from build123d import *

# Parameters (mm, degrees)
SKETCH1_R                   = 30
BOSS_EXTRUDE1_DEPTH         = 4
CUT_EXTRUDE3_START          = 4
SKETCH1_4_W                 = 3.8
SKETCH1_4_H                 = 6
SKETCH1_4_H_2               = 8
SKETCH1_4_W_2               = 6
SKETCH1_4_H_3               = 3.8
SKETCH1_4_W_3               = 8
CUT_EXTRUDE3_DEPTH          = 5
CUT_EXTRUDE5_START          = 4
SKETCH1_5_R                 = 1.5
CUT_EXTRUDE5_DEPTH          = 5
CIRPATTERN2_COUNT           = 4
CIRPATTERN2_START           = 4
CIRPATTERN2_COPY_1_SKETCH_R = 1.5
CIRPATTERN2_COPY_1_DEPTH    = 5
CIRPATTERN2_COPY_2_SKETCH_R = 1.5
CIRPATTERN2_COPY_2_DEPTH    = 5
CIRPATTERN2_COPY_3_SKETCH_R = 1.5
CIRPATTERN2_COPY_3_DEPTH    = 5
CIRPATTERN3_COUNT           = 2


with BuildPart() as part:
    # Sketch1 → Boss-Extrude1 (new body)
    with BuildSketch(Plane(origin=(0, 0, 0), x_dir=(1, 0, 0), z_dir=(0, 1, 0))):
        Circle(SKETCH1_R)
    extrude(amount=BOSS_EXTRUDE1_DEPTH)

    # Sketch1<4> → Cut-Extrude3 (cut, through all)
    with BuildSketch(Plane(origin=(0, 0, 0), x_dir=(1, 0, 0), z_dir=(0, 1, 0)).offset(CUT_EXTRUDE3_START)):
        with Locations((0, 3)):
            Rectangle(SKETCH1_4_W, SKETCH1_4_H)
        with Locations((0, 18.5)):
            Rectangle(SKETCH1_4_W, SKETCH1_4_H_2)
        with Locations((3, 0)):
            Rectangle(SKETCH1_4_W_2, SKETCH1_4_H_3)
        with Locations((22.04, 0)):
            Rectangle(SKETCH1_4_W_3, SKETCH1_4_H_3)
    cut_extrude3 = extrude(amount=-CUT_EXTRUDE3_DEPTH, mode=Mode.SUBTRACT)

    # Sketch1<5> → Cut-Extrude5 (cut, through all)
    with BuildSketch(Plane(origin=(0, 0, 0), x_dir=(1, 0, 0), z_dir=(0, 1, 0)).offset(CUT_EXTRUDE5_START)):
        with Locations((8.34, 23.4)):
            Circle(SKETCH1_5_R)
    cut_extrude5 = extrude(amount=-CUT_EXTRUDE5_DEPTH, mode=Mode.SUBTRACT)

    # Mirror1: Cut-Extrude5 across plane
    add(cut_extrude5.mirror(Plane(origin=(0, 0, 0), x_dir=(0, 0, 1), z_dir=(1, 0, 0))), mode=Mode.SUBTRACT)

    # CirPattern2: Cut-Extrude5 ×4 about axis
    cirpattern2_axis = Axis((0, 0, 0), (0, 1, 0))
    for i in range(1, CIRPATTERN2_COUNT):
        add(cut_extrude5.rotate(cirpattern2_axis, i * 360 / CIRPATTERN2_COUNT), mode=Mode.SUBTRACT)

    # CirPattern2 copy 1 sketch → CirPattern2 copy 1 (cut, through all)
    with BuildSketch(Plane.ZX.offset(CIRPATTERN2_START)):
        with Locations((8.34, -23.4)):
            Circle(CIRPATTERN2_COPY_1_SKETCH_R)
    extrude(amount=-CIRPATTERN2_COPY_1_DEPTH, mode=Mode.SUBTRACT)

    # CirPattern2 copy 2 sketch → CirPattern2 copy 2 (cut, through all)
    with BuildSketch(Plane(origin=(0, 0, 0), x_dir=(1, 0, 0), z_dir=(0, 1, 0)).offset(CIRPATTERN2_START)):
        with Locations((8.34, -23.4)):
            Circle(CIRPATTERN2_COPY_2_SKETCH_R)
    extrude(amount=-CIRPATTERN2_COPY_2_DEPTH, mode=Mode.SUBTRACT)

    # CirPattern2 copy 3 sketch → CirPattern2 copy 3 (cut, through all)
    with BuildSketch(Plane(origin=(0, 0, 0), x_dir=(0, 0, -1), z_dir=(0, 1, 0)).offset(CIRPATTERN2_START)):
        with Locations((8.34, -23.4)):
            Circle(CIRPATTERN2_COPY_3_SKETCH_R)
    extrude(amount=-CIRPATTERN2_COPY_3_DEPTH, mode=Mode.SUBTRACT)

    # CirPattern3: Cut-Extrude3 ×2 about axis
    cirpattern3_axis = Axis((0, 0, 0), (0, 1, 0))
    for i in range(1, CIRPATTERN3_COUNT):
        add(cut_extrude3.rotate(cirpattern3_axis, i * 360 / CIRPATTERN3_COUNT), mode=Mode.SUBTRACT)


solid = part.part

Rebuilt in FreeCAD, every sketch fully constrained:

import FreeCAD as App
import Part
import Sketcher
Q = App.Units.Quantity

doc = App.newDocument("Part")
body = doc.addObject("PartDesign::Body", "Body")

sketch1 = body.newObject("Sketcher::SketchObject", "Sketch")
sketch1.AttachmentSupport = (doc.getObject("XZ_Plane"), [""])
sketch1.MapMode = "FlatFace"
sketch1.addGeometry(Part.Circle(App.Vector(0, 0, 0), App.Vector(0, 0, 1), 30), False)
sketch1.addConstraint(Sketcher.Constraint("Coincident", 0, 3, -1, 1))
sketch1.addConstraint(Sketcher.Constraint("Diameter", 0, Q("60 mm")))
pad1 = body.newObject("PartDesign::Pad", "Pad")
pad1.Profile = sketch1
pad1.Length = 4
pad1.Reversed = True

sketch2 = body.newObject("Sketcher::SketchObject", "Sketch001")
sketch2.AttachmentSupport = (doc.getObject("XZ_Plane"), [""])
sketch2.MapMode = "FlatFace"
sketch2.AttachmentOffset = App.Placement(App.Vector(0, 0, -4), App.Rotation())
sketch2.addGeometry(Part.LineSegment(App.Vector(-1.9, -6, 0), App.Vector(-1.9, 0, 0)), False)
sketch2.addGeometry(Part.LineSegment(App.Vector(-1.9, 0, 0), App.Vector(0, 0, 0)), False)
sketch2.addGeometry(Part.LineSegment(App.Vector(0, 0, 0), App.Vector(0, 1.9, 0)), False)
sketch2.addGeometry(Part.LineSegment(App.Vector(0, 1.9, 0), App.Vector(6, 1.9, 0)), False)
sketch2.addGeometry(Part.LineSegment(App.Vector(6, 1.9, 0), App.Vector(6, -1.9, 0)), False)
sketch2.addGeometry(Part.LineSegment(App.Vector(6, -1.9, 0), App.Vector(1.9, -1.9, 0)), False)
sketch2.addGeometry(Part.LineSegment(App.Vector(1.9, -1.9, 0), App.Vector(1.9, -6, 0)), False)
sketch2.addGeometry(Part.LineSegment(App.Vector(1.9, -6, 0), App.Vector(-1.9, -6, 0)), False)
sketch2.addGeometry(Part.LineSegment(App.Vector(-1.9, -22.5, 0), App.Vector(-1.9, -14.5, 0)), False)
sketch2.addGeometry(Part.LineSegment(App.Vector(-1.9, -14.5, 0), App.Vector(1.9, -14.5, 0)), False)
sketch2.addGeometry(Part.LineSegment(App.Vector(1.9, -14.5, 0), App.Vector(1.9, -22.5, 0)), False)
sketch2.addGeometry(Part.LineSegment(App.Vector(1.9, -22.5, 0), App.Vector(-1.9, -22.5, 0)), False)
sketch2.addGeometry(Part.LineSegment(App.Vector(18, -1.9, 0), App.Vector(18, 1.9, 0)), False)
sketch2.addGeometry(Part.LineSegment(App.Vector(18, 1.9, 0), App.Vector(26, 1.9, 0)), False)
sketch2.addGeometry(Part.LineSegment(App.Vector(26, 1.9, 0), App.Vector(26, -1.9, 0)), False)
sketch2.addGeometry(Part.LineSegment(App.Vector(26, -1.9, 0), App.Vector(18, -1.9, 0)), False)
sketch2.addConstraint(Sketcher.Constraint("Coincident", 0, 2, 1, 1))
sketch2.addConstraint(Sketcher.Constraint("Coincident", 1, 2, 2, 1))
sketch2.addConstraint(Sketcher.Constraint("Coincident", 2, 2, 3, 1))
sketch2.addConstraint(Sketcher.Constraint("Coincident", 3, 2, 4, 1))
sketch2.addConstraint(Sketcher.Constraint("Coincident", 4, 2, 5, 1))
sketch2.addConstraint(Sketcher.Constraint("Coincident", 5, 2, 6, 1))
sketch2.addConstraint(Sketcher.Constraint("Coincident", 6, 2, 7, 1))
sketch2.addConstraint(Sketcher.Constraint("Coincident", 7, 2, 0, 1))
sketch2.addConstraint(Sketcher.Constraint("Coincident", 8, 2, 9, 1))
sketch2.addConstraint(Sketcher.Constraint("Coincident", 9, 2, 10, 1))
sketch2.addConstraint(Sketcher.Constraint("Coincident", 10, 2, 11, 1))
sketch2.addConstraint(Sketcher.Constraint("Coincident", 11, 2, 8, 1))
sketch2.addConstraint(Sketcher.Constraint("Coincident", 12, 2, 13, 1))
sketch2.addConstraint(Sketcher.Constraint("Coincident", 13, 2, 14, 1))
sketch2.addConstraint(Sketcher.Constraint("Coincident", 14, 2, 15, 1))
sketch2.addConstraint(Sketcher.Constraint("Coincident", 15, 2, 12, 1))
sketch2.addConstraint(Sketcher.Constraint("Vertical", 0))
sketch2.addConstraint(Sketcher.Constraint("Horizontal", 1))
sketch2.addConstraint(Sketcher.Constraint("Vertical", 2))
sketch2.addConstraint(Sketcher.Constraint("Horizontal", 3))
sketch2.addConstraint(Sketcher.Constraint("Vertical", 4))
sketch2.addConstraint(Sketcher.Constraint("Horizontal", 5))
sketch2.addConstraint(Sketcher.Constraint("Vertical", 6))
sketch2.addConstraint(Sketcher.Constraint("Horizontal", 7))
sketch2.addConstraint(Sketcher.Constraint("Vertical", 8))
sketch2.addConstraint(Sketcher.Constraint("Horizontal", 9))
sketch2.addConstraint(Sketcher.Constraint("Vertical", 10))
sketch2.addConstraint(Sketcher.Constraint("Horizontal", 11))
sketch2.addConstraint(Sketcher.Constraint("Vertical", 12))
sketch2.addConstraint(Sketcher.Constraint("Horizontal", 13))
sketch2.addConstraint(Sketcher.Constraint("Vertical", 14))
sketch2.addConstraint(Sketcher.Constraint("Horizontal", 15))
sketch2.addConstraint(Sketcher.Constraint("Coincident", 1, 2, -1, 1))
sketch2.addConstraint(Sketcher.Constraint("Horizontal", 3, 2, 12, 2))
sketch2.addConstraint(Sketcher.Constraint("Horizontal", 5, 2, 14, 2))
sketch2.addConstraint(Sketcher.Constraint("Vertical", 7, 2, 8, 2))
sketch2.addConstraint(Sketcher.Constraint("Vertical", 6, 2, 9, 2))
sketch2.addConstraint(Sketcher.Constraint("Equal", 3, 0))
sketch2.addConstraint(Sketcher.Constraint("Equal", 1, 2))
sketch2.addConstraint(Sketcher.Constraint("Equal", 11, 4))
sketch2.addConstraint(Sketcher.Constraint("Equal", 15, 8))
sketch2.addConstraint(Sketcher.Constraint("DistanceX", 3, 1, 3, 2, Q("6 mm")))
sketch2.addConstraint(Sketcher.Constraint("DistanceX", 13, 1, 13, 2, Q("8 mm")))
sketch2.addConstraint(Sketcher.Constraint("DistanceX", 1, 1, 1, 2, Q("1.9 mm")))
sketch2.addConstraint(Sketcher.Constraint("DistanceX", 5, 2, 5, 1, Q("4.1 mm")))
sketch2.addConstraint(Sketcher.Constraint("DistanceY", 8, 2, -1, 1, Q("14.5 mm")))
sketch2.addConstraint(Sketcher.Constraint("DistanceX", -1, 1, 12, 2, Q("18.04 mm")))
pocket1 = body.newObject("PartDesign::Pocket", "Pocket")
pocket1.Profile = sketch2
pocket1.Type = "ThroughAll"
pocket1.Reversed = True

sketch3 = body.newObject("Sketcher::SketchObject", "Sketch002")
sketch3.AttachmentSupport = (doc.getObject("XZ_Plane"), [""])
sketch3.MapMode = "FlatFace"
sketch3.AttachmentOffset = App.Placement(App.Vector(0, 0, -4), App.Rotation())
sketch3.addGeometry(Part.Circle(App.Vector(8.3, -23.4, 0), App.Vector(0, 0, 1), 1.5), False)
sketch3.addConstraint(Sketcher.Constraint("Diameter", 0, Q("3 mm")))
sketch3.addConstraint(Sketcher.Constraint("DistanceY", 0, 3, -1, 1, Q("23.4 mm")))
sketch3.addConstraint(Sketcher.Constraint("DistanceX", -1, 1, 0, 3, Q("8.34 mm")))
pocket2 = body.newObject("PartDesign::Pocket", "Pocket001")
pocket2.Profile = sketch3
pocket2.Type = "ThroughAll"
pocket2.Reversed = True
doc.recompute()

mirrored = body.newObject("PartDesign::Mirrored", "Mirrored")
mirrored.Originals = [pocket2]
mirrored.MirrorPlane = (doc.getObject("YZ_Plane"), [""])
body.Tip = mirrored
doc.recompute()

polarpattern = body.newObject("PartDesign::PolarPattern", "PolarPattern")
polarpattern.Originals = [pocket2]
polarpattern.Axis = (doc.getObject("Y_Axis"), [""])
polarpattern.Angle = 360
polarpattern.Occurrences = 4
body.Tip = polarpattern

sketch4 = body.newObject("Sketcher::SketchObject", "Sketch003")
sketch4.AttachmentSupport = (doc.getObject("XZ_Plane"), [""])
sketch4.MapMode = "FlatFace"
sketch4.AttachmentOffset = App.Placement(App.Vector(0, 0, -4), App.Rotation())
sketch4.addGeometry(Part.Circle(App.Vector(-23.4, 8.3, 0), App.Vector(0, 0, 1), 1.5), False)
sketch4.addConstraint(Sketcher.Constraint("Diameter", 0, Q("3 mm")))
sketch4.addConstraint(Sketcher.Constraint("DistanceX", 0, 3, -1, 1, Q("23.4 mm")))
sketch4.addConstraint(Sketcher.Constraint("DistanceY", -1, 1, 0, 3, Q("8.34 mm")))
pocket3 = body.newObject("PartDesign::Pocket", "Pocket002")
pocket3.Profile = sketch4
pocket3.Type = "ThroughAll"
pocket3.Reversed = True

sketch5 = body.newObject("Sketcher::SketchObject", "Sketch004")
sketch5.AttachmentSupport = (doc.getObject("XZ_Plane"), [""])
sketch5.MapMode = "FlatFace"
sketch5.AttachmentOffset = App.Placement(App.Vector(0, 0, -4), App.Rotation())
sketch5.addGeometry(Part.Circle(App.Vector(8.3, 23.4, 0), App.Vector(0, 0, 1), 1.5), False)
sketch5.addConstraint(Sketcher.Constraint("Diameter", 0, Q("3 mm")))
sketch5.addConstraint(Sketcher.Constraint("DistanceY", -1, 1, 0, 3, Q("23.4 mm")))
sketch5.addConstraint(Sketcher.Constraint("DistanceX", -1, 1, 0, 3, Q("8.34 mm")))
pocket4 = body.newObject("PartDesign::Pocket", "Pocket003")
pocket4.Profile = sketch5
pocket4.Type = "ThroughAll"
pocket4.Reversed = True

sketch6 = body.newObject("Sketcher::SketchObject", "Sketch005")
sketch6.AttachmentSupport = (doc.getObject("XZ_Plane"), [""])
sketch6.MapMode = "FlatFace"
sketch6.AttachmentOffset = App.Placement(App.Vector(0, 0, -4), App.Rotation())
sketch6.addGeometry(Part.Circle(App.Vector(23.4, -8.3, 0), App.Vector(0, 0, 1), 1.5), False)
sketch6.addConstraint(Sketcher.Constraint("Diameter", 0, Q("3 mm")))
sketch6.addConstraint(Sketcher.Constraint("DistanceX", -1, 1, 0, 3, Q("23.4 mm")))
sketch6.addConstraint(Sketcher.Constraint("DistanceY", 0, 3, -1, 1, Q("8.34 mm")))
pocket5 = body.newObject("PartDesign::Pocket", "Pocket004")
pocket5.Profile = sketch6
pocket5.Type = "ThroughAll"
pocket5.Reversed = True
doc.recompute()

polarpattern2 = body.newObject("PartDesign::PolarPattern", "PolarPattern001")
polarpattern2.Originals = [pocket1]
polarpattern2.Axis = (doc.getObject("Y_Axis"), [""])
polarpattern2.Angle = 360
polarpattern2.Occurrences = 2
body.Tip = polarpattern2

doc.recompute()
